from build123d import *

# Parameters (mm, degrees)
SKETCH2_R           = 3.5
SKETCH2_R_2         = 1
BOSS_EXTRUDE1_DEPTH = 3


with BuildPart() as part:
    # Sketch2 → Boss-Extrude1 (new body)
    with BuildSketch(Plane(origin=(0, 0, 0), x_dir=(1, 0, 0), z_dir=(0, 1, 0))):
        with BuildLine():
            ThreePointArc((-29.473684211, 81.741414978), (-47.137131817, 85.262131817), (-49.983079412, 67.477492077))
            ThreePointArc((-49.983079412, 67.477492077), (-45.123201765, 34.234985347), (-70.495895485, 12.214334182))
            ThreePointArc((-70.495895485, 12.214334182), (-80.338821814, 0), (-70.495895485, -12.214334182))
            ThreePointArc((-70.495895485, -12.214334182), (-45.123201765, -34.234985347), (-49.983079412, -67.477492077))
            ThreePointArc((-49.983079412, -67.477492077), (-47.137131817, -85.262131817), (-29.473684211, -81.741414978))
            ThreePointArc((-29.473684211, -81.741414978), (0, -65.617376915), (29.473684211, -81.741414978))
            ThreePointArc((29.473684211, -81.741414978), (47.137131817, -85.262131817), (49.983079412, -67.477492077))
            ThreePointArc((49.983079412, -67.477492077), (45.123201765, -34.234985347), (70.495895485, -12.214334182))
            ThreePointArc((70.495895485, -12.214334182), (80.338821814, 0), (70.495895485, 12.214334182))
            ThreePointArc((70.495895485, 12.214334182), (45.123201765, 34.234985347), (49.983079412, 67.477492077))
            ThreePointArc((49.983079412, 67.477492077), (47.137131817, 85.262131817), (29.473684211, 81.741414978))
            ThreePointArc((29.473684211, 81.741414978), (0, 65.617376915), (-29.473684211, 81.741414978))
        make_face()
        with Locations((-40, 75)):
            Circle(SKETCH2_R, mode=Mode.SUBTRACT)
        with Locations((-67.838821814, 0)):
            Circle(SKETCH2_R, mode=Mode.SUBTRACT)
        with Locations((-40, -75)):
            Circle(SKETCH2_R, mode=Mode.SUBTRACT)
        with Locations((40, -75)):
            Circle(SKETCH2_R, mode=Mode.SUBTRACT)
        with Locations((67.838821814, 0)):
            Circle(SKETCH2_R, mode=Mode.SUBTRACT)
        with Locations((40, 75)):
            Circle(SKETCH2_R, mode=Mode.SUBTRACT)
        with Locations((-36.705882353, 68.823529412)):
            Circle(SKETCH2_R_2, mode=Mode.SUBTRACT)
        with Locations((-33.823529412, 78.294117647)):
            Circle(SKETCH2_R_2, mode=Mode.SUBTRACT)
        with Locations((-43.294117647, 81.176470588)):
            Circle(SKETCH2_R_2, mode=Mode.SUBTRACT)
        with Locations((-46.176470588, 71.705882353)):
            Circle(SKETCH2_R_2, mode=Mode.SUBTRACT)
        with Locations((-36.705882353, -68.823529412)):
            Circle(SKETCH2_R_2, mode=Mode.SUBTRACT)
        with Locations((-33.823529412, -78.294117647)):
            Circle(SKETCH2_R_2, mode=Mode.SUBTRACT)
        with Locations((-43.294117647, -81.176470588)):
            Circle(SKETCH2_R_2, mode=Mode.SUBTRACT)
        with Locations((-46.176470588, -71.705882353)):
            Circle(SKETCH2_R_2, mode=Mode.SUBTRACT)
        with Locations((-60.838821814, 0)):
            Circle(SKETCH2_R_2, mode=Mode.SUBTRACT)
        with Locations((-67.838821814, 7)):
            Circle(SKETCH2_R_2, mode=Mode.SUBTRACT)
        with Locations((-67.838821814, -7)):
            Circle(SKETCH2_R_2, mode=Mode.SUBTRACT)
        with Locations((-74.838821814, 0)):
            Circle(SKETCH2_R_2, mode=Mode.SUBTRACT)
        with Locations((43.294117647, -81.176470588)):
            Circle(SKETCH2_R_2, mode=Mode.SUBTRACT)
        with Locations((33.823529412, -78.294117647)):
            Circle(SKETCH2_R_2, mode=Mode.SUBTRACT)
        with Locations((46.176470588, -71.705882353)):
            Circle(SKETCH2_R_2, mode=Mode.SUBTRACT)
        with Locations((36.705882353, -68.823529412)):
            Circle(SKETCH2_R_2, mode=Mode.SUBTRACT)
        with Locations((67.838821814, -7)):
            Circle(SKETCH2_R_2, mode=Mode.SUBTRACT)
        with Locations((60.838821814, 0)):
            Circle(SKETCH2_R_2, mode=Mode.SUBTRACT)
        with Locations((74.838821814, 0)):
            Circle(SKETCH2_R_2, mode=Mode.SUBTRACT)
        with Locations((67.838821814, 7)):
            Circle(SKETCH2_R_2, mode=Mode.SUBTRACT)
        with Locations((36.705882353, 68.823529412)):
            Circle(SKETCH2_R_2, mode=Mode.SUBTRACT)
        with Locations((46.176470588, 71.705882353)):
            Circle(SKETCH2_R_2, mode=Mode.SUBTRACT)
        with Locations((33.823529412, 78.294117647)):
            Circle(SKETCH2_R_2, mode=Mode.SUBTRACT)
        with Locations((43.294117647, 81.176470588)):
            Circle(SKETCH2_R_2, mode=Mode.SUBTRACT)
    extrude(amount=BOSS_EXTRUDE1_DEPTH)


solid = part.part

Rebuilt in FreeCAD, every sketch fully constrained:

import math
import FreeCAD as App
import Part
import Sketcher
Q = App.Units.Quantity

doc = App.newDocument("Part")
body = doc.addObject("PartDesign::Body", "Body")

# Sketch on XZ plane
sketch1 = body.newObject("Sketcher::SketchObject", "Sketch")
sketch1.AttachmentSupport = (doc.getObject("XZ_Plane"), [""])
sketch1.MapMode = "FlatFace"
sketch1.addGeometry([
    Part.ArcOfCircle(Part.Circle(App.Vector(-40, -75, 0), App.Vector(0, 0, 1), 12.5), math.radians(143), math.radians(327)),  # 0
    Part.ArcOfCircle(Part.Circle(App.Vector(-77.9, -46.4, 0), App.Vector(0, 0, 1), 35), math.radians(-37), math.radians(78)),  # 1
    Part.ArcOfCircle(Part.Circle(App.Vector(-67.8, 0, 0), App.Vector(0, 0, 1), 12.5), math.radians(102), math.radians(258)),  # 2
    Part.ArcOfCircle(Part.Circle(App.Vector(-77.9, 46.4, 0), App.Vector(0, 0, 1), 35), math.radians(-78), math.radians(37)),  # 3
    Part.ArcOfCircle(Part.Circle(App.Vector(-40, 75, 0), App.Vector(0, 0, 1), 12.5), math.radians(33), math.radians(217)),  # 4
    Part.ArcOfCircle(Part.Circle(App.Vector(0, 100.6, 0), App.Vector(0, 0, 1), 35), math.radians(-147), math.radians(-33)),  # 5
    Part.ArcOfCircle(Part.Circle(App.Vector(40, 75, 0), App.Vector(0, 0, 1), 12.5), math.radians(-37), math.radians(147)),  # 6
    Part.ArcOfCircle(Part.Circle(App.Vector(77.9, 46.4, 0), App.Vector(0, 0, 1), 35), math.radians(143), math.radians(258)),  # 7
    Part.ArcOfCircle(Part.Circle(App.Vector(67.8, 0, 0), App.Vector(0, 0, 1), 12.5), math.radians(-78), math.radians(78)),  # 8
    Part.ArcOfCircle(Part.Circle(App.Vector(77.9, -46.4, 0), App.Vector(0, 0, 1), 35), math.radians(102), math.radians(217)),  # 9
    Part.ArcOfCircle(Part.Circle(App.Vector(40, -75, 0), App.Vector(0, 0, 1), 12.5), math.radians(-147), math.radians(37)),  # 10
    Part.ArcOfCircle(Part.Circle(App.Vector(0, -100.6, 0), App.Vector(0, 0, 1), 35), math.radians(33), math.radians(147)),  # 11
    Part.Circle(App.Vector(-43.3, 81.2, 0), App.Vector(0, 0, 1), 1),  # 12
    Part.Circle(App.Vector(-40, 75, 0), App.Vector(0, 0, 1), 3.5),  # 13
    Part.Circle(App.Vector(-46.2, 71.7, 0), App.Vector(0, 0, 1), 1),  # 14
    Part.Circle(App.Vector(-33.8, 78.3, 0), App.Vector(0, 0, 1), 1),  # 15
    Part.Circle(App.Vector(-36.7, 68.8, 0), App.Vector(0, 0, 1), 1),  # 16
    Part.Circle(App.Vector(-67.8, 7, 0), App.Vector(0, 0, 1), 1),  # 17
    Part.Circle(App.Vector(-74.8, 0, 0), App.Vector(0, 0, 1), 1),  # 18
    Part.Circle(App.Vector(-67.8, 0, 0), App.Vector(0, 0, 1), 3.5),  # 19
    Part.Circle(App.Vector(-60.8, 0, 0), App.Vector(0, 0, 1), 1),  # 20
    Part.Circle(App.Vector(33.8, 78.3, 0), App.Vector(0, 0, 1), 1),  # 21
    Part.Circle(App.Vector(36.7, 68.8, 0), App.Vector(0, 0, 1), 1),  # 22
    Part.Circle(App.Vector(43.3, 81.2, 0), App.Vector(0, 0, 1), 1),  # 23
    Part.Circle(App.Vector(40, 75, 0), App.Vector(0, 0, 1), 3.5),  # 24
    Part.Circle(App.Vector(46.2, 71.7, 0), App.Vector(0, 0, 1), 1),  # 25
    Part.Circle(App.Vector(60.8, 0, 0), App.Vector(0, 0, 1), 1),  # 26
    Part.Circle(App.Vector(67.8, 7, 0), App.Vector(0, 0, 1), 1),  # 27
    Part.Circle(App.Vector(67.8, 0, 0), App.Vector(0, 0, 1), 3.5),  # 28
    Part.Circle(App.Vector(74.8, 0, 0), App.Vector(0, 0, 1), 1),  # 29
    Part.Circle(App.Vector(-67.8, -7, 0), App.Vector(0, 0, 1), 1),  # 30
    Part.Circle(App.Vector(-46.2, -71.7, 0), App.Vector(0, 0, 1), 1),  # 31
    Part.Circle(App.Vector(-40, -75, 0), App.Vector(0, 0, 1), 3.5),  # 32
    Part.Circle(App.Vector(-43.3, -81.2, 0), App.Vector(0, 0, 1), 1),  # 33
    Part.Circle(App.Vector(-36.7, -68.8, 0), App.Vector(0, 0, 1), 1),  # 34
    Part.Circle(App.Vector(-33.8, -78.3, 0), App.Vector(0, 0, 1), 1),  # 35
    Part.Circle(App.Vector(67.8, -7, 0), App.Vector(0, 0, 1), 1),  # 36
    Part.Circle(App.Vector(36.7, -68.8, 0), App.Vector(0, 0, 1), 1),  # 37
    Part.Circle(App.Vector(33.8, -78.3, 0), App.Vector(0, 0, 1), 1),  # 38
    Part.Circle(App.Vector(46.2, -71.7, 0), App.Vector(0, 0, 1), 1),  # 39
    Part.Circle(App.Vector(40, -75, 0), App.Vector(0, 0, 1), 3.5),  # 40
    Part.Circle(App.Vector(43.3, -81.2, 0), App.Vector(0, 0, 1), 1),  # 41
], False)
sketch1.addConstraint([
    Sketcher.Constraint("Tangent", 0, 1, 1, 1),
    Sketcher.Constraint("Tangent", 1, 2, 2, 2),
    Sketcher.Constraint("Tangent", 2, 1, 3, 1),
    Sketcher.Constraint("Tangent", 3, 2, 4, 2),
    Sketcher.Constraint("Tangent", 4, 1, 5, 1),
    Sketcher.Constraint("Tangent", 5, 2, 6, 2),
    Sketcher.Constraint("Tangent", 6, 1, 7, 1),
    Sketcher.Constraint("Tangent", 7, 2, 8, 2),
    Sketcher.Constraint("Tangent", 8, 1, 9, 1),
    Sketcher.Constraint("Tangent", 9, 2, 10, 2),
    Sketcher.Constraint("Tangent", 10, 1, 11, 1),
    Sketcher.Constraint("Tangent", 11, 2, 0, 2),
    Sketcher.Constraint("Coincident", 13, 3, 4, 3),
    Sketcher.Constraint("Coincident", 19, 3, 2, 3),
    Sketcher.Constraint("Coincident", 24, 3, 6, 3),
    Sketcher.Constraint("Coincident", 28, 3, 8, 3),
    Sketcher.Constraint("Coincident", 32, 3, 0, 3),
    Sketcher.Constraint("Coincident", 40, 3, 10, 3),
    Sketcher.Constraint("Equal", 0, 2),
    Sketcher.Constraint("Equal", 1, 3),
    Sketcher.Constraint("Equal", 2, 4),
    Sketcher.Constraint("Equal", 3, 5),
    Sketcher.Constraint("Equal", 4, 6),
    Sketcher.Constraint("Equal", 5, 7),
    Sketcher.Constraint("Equal", 6, 8),
    Sketcher.Constraint("Equal", 7, 9),
    Sketcher.Constraint("Equal", 8, 10),
    Sketcher.Constraint("Equal", 9, 11),
    Sketcher.Constraint("Equal", 12, 14),
    Sketcher.Constraint("Equal", 14, 15),
    Sketcher.Constraint("Equal", 15, 16),
    Sketcher.Constraint("Equal", 16, 17),
    Sketcher.Constraint("Equal", 17, 18),
    Sketcher.Constraint("Equal", 13, 19),
    Sketcher.Constraint("Equal", 18, 20),
    Sketcher.Constraint("Equal", 20, 21),
    Sketcher.Constraint("Equal", 21, 22),
    Sketcher.Constraint("Equal", 22, 23),
    Sketcher.Constraint("Equal", 19, 24),
    Sketcher.Constraint("Equal", 23, 25),
    Sketcher.Constraint("Equal", 25, 26),
    Sketcher.Constraint("Equal", 26, 27),
    Sketcher.Constraint("Equal", 24, 28),
    Sketcher.Constraint("Equal", 27, 29),
    Sketcher.Constraint("Equal", 29, 30),
    Sketcher.Constraint("Equal", 30, 31),
    Sketcher.Constraint("Equal", 28, 32),
    Sketcher.Constraint("Equal", 31, 33),
    Sketcher.Constraint("Equal", 33, 34),
    Sketcher.Constraint("Equal", 34, 35),
    Sketcher.Constraint("Equal", 35, 36),
    Sketcher.Constraint("Equal", 36, 37),
    Sketcher.Constraint("Equal", 37, 38),
    Sketcher.Constraint("Equal", 38, 39),
    Sketcher.Constraint("Equal", 32, 40),
    Sketcher.Constraint("Equal", 39, 41),
    Sketcher.Constraint("Symmetric", 0, 3, 6, 3, -1, 1),
    Sketcher.Constraint("Symmetric", 2, 3, 8, 3, -1, 1),
    Sketcher.Constraint("Symmetric", 4, 3, 10, 3, -1, 1),
    Sketcher.Constraint("Symmetric", 20, 3, 26, 3, -1, 1),
    Sketcher.Constraint("Symmetric", 18, 3, 29, 3, -1, 1),
    Sketcher.Constraint("Symmetric", 27, 3, 30, 3, -1, 1),
    Sketcher.Constraint("Symmetric", 25, 3, 31, 3, -1, 1),
    Sketcher.Constraint("Symmetric", 23, 3, 33, 3, -1, 1),
    Sketcher.Constraint("Symmetric", 22, 3, 34, 3, -1, 1),
    Sketcher.Constraint("Symmetric", 21, 3, 35, 3, -1, 1),
    Sketcher.Constraint("Symmetric", 17, 3, 36, 3, -1, 1),
    Sketcher.Constraint("Symmetric", 16, 3, 37, 3, -1, 1),
    Sketcher.Constraint("Symmetric", 15, 3, 38, 3, -1, 1),
    Sketcher.Constraint("Symmetric", 14, 3, 39, 3, -1, 1),
    Sketcher.Constraint("Symmetric", 12, 3, 41, 3, -1, 1),
    Sketcher.Constraint("Symmetric", 4, 3, 6, 3, -2),
    Sketcher.Constraint("Symmetric", 15, 3, 21, 3, -2),
    Sketcher.Constraint("Symmetric", 16, 3, 22, 3, -2),
    Sketcher.Constraint("Symmetric", 12, 3, 23, 3, -2),
    Sketcher.Constraint("Symmetric", 14, 3, 25, 3, -2),
    Sketcher.Constraint("Symmetric", 17, 3, 27, 3, -2),
    Sketcher.Constraint("PointOnObject", 2, 3, -1),
    Sketcher.Constraint("PointOnObject", 18, 3, -1),
    Sketcher.Constraint("PointOnObject", 20, 3, -1),
    Sketcher.Constraint("Vertical", 2, 3, 17, 3),
    Sketcher.Constraint("Diameter", 12, Q("2 mm")),
    Sketcher.Constraint("Diameter", 13, Q("7 mm")),
    Sketcher.Constraint("Radius", 1, Q("35 mm")),
    Sketcher.Constraint("Radius", 0, Q("12.5 mm")),
    Sketcher.Constraint("DistanceX", 0, 3, -1, 1, Q("40 mm")),
    Sketcher.Constraint("DistanceY", 0, 3, -1, 1, Q("75 mm")),
    Sketcher.Constraint("DistanceY", -1, 1, 17, 3, Q("7 mm")),
    Sketcher.Constraint("DistanceX", 18, 3, 2, 3, Q("7 mm")),
    Sketcher.Constraint("DistanceX", 2, 3, 20, 3, Q("7 mm")),
    Sketcher.Constraint("DistanceY", 3, 3, 12, 3, Q("34.762001 mm")),
    Sketcher.Constraint("DistanceX", 1, 3, -1, 1, Q("77.935702 mm")),
    Sketcher.Constraint("DistanceX", 16, 3, 4, 1, Q("7.232198 mm")),
    Sketcher.Constraint("DistanceX", 14, 3, -1, 1, Q("46.176471 mm")),
    Sketcher.Constraint("DistanceX", 15, 3, -1, 1, Q("33.823529 mm")),
    Sketcher.Constraint("DistanceY", -1, 1, 16, 3, Q("68.823529 mm")),
    Sketcher.Constraint("DistanceY", 14, 3, 12, 3, Q("9.470588 mm")),
    Sketcher.Constraint("DistanceX", 12, 3, 15, 3, Q("9.470588 mm")),
    Sketcher.Constraint("DistanceY", 15, 3, 5, 3, Q("22.323259 mm")),
])
pad1 = body.newObject("PartDesign::Pad", "Pad")
pad1.Profile = sketch1
pad1.Length = 3
pad1.Reversed = True

doc.recompute()
